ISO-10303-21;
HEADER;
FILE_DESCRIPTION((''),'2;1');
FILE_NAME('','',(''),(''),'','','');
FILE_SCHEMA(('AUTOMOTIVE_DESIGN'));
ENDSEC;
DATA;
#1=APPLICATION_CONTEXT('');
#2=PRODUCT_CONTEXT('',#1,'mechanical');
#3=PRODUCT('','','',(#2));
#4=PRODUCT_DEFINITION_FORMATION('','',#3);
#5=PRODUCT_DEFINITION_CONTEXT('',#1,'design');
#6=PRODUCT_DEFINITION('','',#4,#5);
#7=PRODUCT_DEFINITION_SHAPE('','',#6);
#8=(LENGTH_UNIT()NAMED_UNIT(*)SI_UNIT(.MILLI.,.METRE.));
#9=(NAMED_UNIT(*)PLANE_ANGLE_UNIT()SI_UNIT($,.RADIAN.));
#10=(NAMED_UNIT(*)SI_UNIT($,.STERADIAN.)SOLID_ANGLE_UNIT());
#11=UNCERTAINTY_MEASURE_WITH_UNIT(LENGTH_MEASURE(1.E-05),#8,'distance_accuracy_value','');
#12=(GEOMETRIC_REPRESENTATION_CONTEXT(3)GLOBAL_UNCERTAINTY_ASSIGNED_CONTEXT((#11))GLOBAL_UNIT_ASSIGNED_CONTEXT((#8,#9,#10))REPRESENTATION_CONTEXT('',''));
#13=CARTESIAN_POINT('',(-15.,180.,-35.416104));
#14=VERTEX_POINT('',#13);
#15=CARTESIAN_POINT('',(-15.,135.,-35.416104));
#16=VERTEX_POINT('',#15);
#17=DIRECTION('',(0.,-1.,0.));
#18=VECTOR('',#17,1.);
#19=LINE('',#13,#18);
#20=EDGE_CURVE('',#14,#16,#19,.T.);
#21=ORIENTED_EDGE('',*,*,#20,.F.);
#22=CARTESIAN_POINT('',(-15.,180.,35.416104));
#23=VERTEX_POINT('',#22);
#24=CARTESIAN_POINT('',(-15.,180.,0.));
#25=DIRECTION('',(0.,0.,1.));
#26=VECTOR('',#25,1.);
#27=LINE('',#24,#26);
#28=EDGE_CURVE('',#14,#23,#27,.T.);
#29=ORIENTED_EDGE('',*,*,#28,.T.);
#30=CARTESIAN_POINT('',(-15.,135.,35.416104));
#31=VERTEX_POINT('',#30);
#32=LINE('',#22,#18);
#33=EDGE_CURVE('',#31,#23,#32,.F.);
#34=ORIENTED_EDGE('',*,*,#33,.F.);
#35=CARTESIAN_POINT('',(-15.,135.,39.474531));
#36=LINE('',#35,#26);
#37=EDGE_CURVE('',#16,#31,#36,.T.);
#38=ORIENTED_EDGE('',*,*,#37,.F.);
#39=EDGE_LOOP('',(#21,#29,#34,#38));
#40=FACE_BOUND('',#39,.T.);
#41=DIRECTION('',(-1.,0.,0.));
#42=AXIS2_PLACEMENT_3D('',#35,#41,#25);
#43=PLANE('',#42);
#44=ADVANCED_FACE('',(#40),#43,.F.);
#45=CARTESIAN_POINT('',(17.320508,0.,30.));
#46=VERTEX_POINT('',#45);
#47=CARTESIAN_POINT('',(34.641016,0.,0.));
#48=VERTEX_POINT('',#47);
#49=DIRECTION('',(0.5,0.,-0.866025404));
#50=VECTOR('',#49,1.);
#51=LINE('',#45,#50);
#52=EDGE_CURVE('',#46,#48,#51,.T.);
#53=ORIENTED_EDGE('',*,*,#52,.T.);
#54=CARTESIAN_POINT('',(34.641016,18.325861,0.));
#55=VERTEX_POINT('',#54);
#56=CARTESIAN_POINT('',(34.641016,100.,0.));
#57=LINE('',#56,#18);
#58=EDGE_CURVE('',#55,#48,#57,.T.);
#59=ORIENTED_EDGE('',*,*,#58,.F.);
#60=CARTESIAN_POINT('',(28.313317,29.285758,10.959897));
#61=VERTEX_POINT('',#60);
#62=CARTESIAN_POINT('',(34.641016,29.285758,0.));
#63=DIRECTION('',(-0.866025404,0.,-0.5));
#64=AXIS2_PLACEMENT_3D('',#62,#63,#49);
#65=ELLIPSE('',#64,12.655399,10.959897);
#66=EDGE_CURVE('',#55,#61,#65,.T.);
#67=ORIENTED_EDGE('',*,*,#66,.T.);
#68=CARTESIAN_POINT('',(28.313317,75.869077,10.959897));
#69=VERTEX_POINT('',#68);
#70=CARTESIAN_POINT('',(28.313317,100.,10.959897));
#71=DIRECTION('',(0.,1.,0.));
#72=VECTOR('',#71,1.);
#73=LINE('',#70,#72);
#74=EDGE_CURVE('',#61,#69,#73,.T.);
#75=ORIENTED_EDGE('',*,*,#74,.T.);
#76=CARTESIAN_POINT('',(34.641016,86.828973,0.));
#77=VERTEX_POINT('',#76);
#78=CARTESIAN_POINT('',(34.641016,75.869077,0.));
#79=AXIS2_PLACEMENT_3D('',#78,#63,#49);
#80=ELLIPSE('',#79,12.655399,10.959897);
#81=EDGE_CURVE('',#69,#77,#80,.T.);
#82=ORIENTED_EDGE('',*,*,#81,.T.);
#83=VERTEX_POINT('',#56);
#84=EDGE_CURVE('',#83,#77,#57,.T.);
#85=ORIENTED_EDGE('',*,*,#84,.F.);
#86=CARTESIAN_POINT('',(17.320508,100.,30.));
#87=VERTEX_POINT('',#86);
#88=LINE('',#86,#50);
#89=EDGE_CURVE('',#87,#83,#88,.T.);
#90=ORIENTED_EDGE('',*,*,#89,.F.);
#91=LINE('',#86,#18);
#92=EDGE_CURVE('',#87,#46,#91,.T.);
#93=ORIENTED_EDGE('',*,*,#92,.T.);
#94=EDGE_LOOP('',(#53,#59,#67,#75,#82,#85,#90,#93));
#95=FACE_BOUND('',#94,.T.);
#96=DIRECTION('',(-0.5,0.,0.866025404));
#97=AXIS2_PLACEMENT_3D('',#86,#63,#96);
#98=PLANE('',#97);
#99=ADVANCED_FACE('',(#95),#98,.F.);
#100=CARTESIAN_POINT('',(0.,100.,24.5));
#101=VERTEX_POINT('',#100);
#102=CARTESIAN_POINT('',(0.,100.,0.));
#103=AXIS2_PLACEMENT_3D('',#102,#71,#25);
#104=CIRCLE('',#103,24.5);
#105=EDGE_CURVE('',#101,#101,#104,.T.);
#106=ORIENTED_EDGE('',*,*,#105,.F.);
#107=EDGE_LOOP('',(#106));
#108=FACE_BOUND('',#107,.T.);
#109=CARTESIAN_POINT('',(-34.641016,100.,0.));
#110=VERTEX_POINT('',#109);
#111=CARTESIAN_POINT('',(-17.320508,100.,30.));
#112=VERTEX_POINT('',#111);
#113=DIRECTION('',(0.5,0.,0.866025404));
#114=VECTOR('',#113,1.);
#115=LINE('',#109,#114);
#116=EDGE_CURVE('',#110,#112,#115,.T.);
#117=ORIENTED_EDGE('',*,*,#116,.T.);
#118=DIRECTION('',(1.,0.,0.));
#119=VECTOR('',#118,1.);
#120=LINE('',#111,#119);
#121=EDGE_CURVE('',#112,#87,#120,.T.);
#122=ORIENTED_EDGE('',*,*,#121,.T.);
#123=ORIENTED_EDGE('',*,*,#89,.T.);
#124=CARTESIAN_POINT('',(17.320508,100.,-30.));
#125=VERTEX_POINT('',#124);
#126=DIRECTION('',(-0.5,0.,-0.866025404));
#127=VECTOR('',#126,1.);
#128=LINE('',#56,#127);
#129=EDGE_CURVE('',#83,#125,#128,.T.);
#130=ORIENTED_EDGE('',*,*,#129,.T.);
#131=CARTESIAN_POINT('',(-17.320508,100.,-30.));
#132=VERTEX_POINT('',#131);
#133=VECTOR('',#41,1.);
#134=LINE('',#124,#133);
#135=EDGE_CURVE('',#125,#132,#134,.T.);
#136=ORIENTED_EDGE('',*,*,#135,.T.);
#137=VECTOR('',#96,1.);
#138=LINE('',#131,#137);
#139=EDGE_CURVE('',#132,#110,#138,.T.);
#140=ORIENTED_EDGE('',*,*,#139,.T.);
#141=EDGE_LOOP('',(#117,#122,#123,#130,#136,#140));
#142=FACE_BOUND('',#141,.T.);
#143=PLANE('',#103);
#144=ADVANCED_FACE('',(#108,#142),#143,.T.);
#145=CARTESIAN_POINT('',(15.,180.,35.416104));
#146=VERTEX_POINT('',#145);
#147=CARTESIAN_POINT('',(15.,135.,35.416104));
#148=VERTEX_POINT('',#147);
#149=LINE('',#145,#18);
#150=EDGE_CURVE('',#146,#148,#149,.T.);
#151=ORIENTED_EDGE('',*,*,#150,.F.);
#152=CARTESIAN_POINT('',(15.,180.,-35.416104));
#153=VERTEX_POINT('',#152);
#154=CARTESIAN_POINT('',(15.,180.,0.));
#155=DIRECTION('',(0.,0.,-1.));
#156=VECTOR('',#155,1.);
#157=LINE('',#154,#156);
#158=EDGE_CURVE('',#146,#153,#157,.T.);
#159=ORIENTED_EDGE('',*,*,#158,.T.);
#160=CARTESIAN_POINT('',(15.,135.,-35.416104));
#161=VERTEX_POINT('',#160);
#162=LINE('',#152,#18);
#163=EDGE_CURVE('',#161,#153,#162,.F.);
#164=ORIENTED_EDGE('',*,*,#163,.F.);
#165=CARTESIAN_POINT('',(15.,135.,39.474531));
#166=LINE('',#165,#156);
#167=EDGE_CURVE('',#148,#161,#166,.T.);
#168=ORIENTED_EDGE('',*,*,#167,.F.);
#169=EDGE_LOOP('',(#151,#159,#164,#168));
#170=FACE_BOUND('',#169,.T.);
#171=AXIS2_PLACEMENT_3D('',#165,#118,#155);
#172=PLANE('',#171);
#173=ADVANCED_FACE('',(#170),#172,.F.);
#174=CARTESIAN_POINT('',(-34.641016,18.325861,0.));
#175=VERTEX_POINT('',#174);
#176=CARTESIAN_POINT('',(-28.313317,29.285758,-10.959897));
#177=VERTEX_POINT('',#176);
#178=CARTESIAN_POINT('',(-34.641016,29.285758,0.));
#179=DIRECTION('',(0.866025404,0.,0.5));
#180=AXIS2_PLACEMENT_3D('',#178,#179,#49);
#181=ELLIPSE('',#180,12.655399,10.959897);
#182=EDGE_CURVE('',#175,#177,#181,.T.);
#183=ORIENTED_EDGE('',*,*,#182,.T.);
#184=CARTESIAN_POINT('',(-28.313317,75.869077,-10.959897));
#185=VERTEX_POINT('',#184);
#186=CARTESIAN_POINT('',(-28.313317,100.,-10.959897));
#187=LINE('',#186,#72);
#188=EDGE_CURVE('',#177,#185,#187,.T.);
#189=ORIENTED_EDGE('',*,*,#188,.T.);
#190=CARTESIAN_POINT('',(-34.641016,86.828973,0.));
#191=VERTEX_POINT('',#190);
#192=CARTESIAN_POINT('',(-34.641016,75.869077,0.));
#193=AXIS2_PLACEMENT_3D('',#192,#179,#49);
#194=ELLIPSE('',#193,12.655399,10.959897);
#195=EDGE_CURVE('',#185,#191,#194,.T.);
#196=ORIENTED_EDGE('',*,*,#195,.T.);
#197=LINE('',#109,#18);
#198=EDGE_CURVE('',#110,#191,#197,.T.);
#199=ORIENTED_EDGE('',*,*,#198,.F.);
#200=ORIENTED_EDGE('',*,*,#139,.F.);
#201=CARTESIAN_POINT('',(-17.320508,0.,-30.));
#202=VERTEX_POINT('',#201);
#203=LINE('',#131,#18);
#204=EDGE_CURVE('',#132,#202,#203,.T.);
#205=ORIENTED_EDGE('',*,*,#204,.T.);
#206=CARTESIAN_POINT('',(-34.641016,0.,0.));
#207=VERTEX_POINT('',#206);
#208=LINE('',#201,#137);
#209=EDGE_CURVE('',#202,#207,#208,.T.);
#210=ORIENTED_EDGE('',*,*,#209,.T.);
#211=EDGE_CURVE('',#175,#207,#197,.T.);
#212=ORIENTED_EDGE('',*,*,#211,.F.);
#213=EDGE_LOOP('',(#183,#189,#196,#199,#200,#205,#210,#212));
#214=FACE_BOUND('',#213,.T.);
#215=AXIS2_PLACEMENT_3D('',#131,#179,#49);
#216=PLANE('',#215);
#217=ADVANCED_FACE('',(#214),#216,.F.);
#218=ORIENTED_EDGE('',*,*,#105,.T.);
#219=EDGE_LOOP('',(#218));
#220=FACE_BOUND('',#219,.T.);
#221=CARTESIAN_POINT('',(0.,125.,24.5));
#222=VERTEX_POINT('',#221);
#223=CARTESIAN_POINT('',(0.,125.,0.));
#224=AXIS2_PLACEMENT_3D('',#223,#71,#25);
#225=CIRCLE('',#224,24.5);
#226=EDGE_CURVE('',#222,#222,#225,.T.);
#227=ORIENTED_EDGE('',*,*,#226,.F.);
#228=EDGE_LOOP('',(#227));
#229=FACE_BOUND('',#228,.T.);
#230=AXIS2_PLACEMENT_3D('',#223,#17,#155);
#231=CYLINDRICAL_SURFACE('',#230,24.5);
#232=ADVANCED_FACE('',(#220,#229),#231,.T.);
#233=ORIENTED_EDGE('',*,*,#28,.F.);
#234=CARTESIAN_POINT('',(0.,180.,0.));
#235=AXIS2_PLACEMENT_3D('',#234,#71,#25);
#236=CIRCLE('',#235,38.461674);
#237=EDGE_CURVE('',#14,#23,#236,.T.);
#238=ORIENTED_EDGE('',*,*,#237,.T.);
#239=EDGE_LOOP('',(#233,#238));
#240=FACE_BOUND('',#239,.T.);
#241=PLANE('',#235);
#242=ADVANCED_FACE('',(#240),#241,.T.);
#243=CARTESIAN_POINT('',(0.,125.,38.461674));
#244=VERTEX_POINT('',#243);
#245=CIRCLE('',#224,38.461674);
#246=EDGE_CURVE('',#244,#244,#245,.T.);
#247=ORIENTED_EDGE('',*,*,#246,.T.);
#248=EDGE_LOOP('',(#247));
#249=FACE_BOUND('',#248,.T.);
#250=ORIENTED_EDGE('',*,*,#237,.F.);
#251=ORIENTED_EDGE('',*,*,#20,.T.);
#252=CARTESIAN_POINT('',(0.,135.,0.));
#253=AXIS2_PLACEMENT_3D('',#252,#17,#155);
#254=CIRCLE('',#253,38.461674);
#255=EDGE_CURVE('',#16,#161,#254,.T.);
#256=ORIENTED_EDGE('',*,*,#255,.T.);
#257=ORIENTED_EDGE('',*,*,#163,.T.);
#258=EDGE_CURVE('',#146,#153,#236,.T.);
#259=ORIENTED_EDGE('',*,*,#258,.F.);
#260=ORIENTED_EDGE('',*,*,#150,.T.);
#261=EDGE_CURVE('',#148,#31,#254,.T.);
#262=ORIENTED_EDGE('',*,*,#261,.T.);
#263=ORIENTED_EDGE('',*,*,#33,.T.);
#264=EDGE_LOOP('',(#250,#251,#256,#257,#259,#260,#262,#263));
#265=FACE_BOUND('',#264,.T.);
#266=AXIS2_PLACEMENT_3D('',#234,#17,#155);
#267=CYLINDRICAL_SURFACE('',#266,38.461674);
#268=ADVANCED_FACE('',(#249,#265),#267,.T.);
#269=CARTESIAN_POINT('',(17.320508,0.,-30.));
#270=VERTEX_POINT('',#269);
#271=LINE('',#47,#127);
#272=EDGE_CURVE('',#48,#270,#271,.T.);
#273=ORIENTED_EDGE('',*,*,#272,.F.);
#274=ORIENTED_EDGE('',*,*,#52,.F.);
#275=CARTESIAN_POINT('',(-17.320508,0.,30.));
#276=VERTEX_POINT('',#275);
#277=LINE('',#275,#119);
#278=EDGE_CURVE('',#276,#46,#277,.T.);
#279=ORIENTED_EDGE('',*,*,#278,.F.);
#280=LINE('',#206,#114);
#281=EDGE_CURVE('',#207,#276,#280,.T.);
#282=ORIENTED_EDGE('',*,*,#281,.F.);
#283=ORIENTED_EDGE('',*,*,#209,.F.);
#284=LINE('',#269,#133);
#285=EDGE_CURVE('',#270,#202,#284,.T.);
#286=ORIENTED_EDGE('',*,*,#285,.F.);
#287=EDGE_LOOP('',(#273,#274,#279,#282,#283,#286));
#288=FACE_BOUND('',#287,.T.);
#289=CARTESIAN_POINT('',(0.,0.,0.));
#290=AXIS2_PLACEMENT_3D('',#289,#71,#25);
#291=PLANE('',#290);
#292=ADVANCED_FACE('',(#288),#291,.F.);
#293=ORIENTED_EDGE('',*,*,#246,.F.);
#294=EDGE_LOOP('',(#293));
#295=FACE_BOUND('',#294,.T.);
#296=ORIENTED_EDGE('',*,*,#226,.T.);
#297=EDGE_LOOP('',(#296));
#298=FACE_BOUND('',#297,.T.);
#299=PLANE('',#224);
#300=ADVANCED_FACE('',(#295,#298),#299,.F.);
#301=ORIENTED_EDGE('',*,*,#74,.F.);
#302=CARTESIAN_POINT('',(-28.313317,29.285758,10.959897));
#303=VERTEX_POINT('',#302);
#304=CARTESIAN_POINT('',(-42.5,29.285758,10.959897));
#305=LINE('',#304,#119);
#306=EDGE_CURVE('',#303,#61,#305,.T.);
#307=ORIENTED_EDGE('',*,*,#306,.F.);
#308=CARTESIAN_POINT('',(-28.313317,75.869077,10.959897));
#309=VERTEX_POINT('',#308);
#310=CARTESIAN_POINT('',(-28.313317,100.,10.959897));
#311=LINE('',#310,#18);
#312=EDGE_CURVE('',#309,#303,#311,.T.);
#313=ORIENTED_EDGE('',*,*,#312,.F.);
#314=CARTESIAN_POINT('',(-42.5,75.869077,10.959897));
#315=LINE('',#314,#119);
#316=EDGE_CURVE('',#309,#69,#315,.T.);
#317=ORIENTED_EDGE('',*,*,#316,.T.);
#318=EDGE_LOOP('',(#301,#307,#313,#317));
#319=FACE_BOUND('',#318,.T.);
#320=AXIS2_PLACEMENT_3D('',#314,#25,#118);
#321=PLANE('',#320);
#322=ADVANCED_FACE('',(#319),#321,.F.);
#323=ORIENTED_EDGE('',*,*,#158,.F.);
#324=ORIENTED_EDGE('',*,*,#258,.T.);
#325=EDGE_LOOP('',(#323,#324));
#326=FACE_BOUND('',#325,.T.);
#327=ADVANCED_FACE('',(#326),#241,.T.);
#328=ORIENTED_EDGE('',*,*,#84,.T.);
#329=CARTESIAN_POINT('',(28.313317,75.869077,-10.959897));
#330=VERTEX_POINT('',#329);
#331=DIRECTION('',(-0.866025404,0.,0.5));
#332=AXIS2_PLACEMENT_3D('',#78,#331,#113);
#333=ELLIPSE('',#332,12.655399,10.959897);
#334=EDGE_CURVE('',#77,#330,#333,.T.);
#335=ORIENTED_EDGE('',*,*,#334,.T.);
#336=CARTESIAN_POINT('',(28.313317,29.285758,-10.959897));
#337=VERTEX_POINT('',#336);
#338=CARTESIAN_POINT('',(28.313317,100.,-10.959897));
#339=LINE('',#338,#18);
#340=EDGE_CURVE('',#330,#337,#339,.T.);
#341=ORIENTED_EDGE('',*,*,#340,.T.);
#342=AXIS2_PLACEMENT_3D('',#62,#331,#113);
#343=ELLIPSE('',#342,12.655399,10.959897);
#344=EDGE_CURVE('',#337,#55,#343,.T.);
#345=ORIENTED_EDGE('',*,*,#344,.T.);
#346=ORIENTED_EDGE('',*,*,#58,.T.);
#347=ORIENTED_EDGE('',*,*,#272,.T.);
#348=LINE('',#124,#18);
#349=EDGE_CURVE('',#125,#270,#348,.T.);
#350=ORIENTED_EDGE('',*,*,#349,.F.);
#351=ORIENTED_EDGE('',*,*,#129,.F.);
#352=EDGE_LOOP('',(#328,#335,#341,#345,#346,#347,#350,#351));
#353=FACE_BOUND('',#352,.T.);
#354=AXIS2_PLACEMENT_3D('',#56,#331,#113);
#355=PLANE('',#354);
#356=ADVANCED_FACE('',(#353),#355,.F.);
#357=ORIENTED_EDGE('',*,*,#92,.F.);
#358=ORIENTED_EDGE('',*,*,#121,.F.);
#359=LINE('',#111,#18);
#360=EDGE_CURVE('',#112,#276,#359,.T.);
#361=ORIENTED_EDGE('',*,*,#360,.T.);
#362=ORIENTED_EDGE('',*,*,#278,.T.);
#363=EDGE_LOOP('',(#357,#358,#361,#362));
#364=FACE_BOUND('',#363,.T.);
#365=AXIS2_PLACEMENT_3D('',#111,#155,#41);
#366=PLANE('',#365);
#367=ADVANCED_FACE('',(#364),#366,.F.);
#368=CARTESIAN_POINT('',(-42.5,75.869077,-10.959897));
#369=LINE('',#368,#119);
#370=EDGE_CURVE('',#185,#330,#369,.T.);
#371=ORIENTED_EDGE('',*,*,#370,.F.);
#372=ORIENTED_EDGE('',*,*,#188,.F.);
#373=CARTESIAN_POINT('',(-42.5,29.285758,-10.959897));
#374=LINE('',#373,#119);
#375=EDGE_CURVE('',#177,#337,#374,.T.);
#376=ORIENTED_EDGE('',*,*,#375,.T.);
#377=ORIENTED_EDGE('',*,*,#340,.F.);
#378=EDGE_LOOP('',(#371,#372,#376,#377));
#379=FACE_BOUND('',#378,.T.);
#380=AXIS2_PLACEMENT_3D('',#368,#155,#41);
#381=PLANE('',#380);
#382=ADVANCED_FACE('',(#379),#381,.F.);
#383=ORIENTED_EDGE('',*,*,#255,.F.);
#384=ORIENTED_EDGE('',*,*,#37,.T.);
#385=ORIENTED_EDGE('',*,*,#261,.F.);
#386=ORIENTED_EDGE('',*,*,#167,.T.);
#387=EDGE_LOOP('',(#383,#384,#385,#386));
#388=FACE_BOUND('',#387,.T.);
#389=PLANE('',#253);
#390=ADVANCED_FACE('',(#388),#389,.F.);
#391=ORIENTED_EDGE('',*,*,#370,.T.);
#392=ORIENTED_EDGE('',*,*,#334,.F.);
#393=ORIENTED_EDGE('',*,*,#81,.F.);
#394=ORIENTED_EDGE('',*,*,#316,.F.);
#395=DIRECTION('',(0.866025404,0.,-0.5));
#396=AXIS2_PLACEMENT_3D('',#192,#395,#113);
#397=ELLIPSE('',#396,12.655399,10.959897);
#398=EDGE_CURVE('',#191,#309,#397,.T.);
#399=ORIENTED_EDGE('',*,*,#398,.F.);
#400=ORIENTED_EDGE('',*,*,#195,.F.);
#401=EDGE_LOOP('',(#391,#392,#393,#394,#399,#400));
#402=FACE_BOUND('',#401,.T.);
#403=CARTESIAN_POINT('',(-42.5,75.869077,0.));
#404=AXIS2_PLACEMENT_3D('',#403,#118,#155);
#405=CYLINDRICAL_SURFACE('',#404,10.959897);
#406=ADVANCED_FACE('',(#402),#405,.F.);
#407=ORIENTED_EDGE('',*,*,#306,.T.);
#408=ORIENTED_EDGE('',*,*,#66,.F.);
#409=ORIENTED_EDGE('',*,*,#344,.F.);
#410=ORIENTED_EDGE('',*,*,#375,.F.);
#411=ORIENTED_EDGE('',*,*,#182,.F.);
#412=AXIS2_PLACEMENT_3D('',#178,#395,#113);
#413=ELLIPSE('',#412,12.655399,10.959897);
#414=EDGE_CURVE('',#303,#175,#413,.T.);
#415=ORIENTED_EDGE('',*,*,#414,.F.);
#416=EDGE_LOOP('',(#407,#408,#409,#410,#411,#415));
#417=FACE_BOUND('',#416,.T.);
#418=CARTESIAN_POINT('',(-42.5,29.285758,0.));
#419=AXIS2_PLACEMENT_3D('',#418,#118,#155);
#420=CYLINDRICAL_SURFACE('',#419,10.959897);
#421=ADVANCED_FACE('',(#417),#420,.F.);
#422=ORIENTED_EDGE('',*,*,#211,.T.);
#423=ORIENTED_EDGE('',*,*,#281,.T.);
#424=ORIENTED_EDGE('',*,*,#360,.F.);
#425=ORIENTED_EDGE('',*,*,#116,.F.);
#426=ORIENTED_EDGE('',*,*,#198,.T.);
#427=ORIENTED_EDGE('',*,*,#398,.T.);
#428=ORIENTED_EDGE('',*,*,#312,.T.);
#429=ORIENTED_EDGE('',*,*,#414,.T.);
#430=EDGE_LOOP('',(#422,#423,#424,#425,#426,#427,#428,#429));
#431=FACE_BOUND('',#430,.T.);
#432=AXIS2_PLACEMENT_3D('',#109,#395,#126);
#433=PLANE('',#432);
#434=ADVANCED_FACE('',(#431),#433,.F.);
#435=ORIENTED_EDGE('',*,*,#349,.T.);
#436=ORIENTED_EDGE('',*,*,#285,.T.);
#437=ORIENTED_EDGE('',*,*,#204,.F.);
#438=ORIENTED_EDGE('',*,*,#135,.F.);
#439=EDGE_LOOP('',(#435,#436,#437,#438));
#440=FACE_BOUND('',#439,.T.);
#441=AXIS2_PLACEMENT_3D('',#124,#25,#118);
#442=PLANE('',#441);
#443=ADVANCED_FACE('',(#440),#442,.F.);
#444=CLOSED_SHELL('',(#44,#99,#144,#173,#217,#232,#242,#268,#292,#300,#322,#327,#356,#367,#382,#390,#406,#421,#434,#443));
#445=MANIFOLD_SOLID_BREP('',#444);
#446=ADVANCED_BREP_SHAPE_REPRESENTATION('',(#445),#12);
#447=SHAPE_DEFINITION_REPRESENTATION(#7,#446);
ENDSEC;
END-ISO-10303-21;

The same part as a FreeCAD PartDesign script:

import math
import FreeCAD as App
import Part
import Sketcher

V = App.Vector
Q = App.Units.Quantity

doc = App.newDocument("Part")
body = doc.addObject("PartDesign::Body", "Body")

# Sketch on XZ plane
sketch1 = body.newObject("Sketcher::SketchObject", "Sketch")
sketch1.AttachmentSupport = (doc.getObject("XZ_Plane"), [""])
sketch1.MapMode = "FlatFace"
sketch1.addGeometry(Part.LineSegment(V(35, 0, 0), V(17, -30, 0)), False)
sketch1.addGeometry(Part.LineSegment(V(17, -30, 0), V(-17, -30, 0)), False)
sketch1.addGeometry(Part.LineSegment(V(-17, -30, 0), V(-35, 0, 0)), False)
sketch1.addGeometry(Part.LineSegment(V(-35, 0, 0), V(-17, 30, 0)), False)
sketch1.addGeometry(Part.LineSegment(V(-17, 30, 0), V(17, 30, 0)), False)
sketch1.addGeometry(Part.LineSegment(V(17, 30, 0), V(35, 0, 0)), False)
sketch1.addConstraint(Sketcher.Constraint("Coincident", 0, 2, 1, 1))
sketch1.addConstraint(Sketcher.Constraint("Coincident", 1, 2, 2, 1))
sketch1.addConstraint(Sketcher.Constraint("Coincident", 2, 2, 3, 1))
sketch1.addConstraint(Sketcher.Constraint("Coincident", 3, 2, 4, 1))
sketch1.addConstraint(Sketcher.Constraint("Coincident", 4, 2, 5, 1))
sketch1.addConstraint(Sketcher.Constraint("Coincident", 5, 2, 0, 1))
sketch1.addConstraint(Sketcher.Constraint("Horizontal", 1))
sketch1.addConstraint(Sketcher.Constraint("Horizontal", 4))
sketch1.addConstraint(Sketcher.Constraint("Symmetric", 0, 2, 3, 2, -1, 1))
sketch1.addConstraint(Sketcher.Constraint("Symmetric", 2, 2, 5, 2, -1, 1))
sketch1.addConstraint(Sketcher.Constraint("PointOnObject", 2, 2, -1))
sketch1.addConstraint(Sketcher.Constraint("Parallel", 2, 5))
sketch1.addConstraint(Sketcher.Constraint("Vertical", 1, 2, 3, 2))
sketch1.addConstraint(Sketcher.Constraint("Angle", 0, Q("-120 deg")))
sketch1.addConstraint(Sketcher.Constraint("DistanceY", 0, 2, -1, 1, 30.0))
sketch1.addConstraint(Sketcher.Constraint("DistanceX", 1, 2, 1, 1, 34.641016))
pad1 = body.newObject("PartDesign::Pad", "Pad")
pad1.Profile = sketch1
pad1.Length = 100
pad1.Reversed = True

# Sketch on XZ plane
sketch2 = body.newObject("Sketcher::SketchObject", "Sketch001")
sketch2.AttachmentSupport = (doc.getObject("XZ_Plane"), [""])
sketch2.MapMode = "FlatFace"
sketch2.AttachmentOffset = App.Placement(V(0, 0, -100), App.Rotation())
sketch2.addGeometry(Part.Circle(V(0, 0, 0), V(0, 0, 1), 24), False)
sketch2.addConstraint(Sketcher.Constraint("Coincident", 0, 3, -1, 1))
sketch2.addConstraint(Sketcher.Constraint("Diameter", 0, 49.0))
pad2 = body.newObject("PartDesign::Pad", "Pad001")
pad2.Profile = sketch2
pad2.Length = 25
pad2.Reversed = True

# Sketch on XZ plane
sketch3 = body.newObject("Sketcher::SketchObject", "Sketch002")
sketch3.AttachmentSupport = (doc.getObject("XZ_Plane"), [""])
sketch3.MapMode = "FlatFace"
sketch3.AttachmentOffset = App.Placement(V(0, 0, -125), App.Rotation())
sketch3.addGeometry(Part.Circle(V(0, 0, 0), V(0, 0, 1), 38), False)
sketch3.addConstraint(Sketcher.Constraint("Coincident", 0, 3, -1, 1))
sketch3.addConstraint(Sketcher.Constraint("Diameter", 0, 76.923349))
pad3 = body.newObject("PartDesign::Pad", "Pad002")
pad3.Profile = sketch3
pad3.Length = 55
pad3.Reversed = True

# Sketch on XZ plane
sketch4 = body.newObject("Sketcher::SketchObject", "Sketch003")
sketch4.AttachmentSupport = (doc.getObject("XZ_Plane"), [""])
sketch4.MapMode = "FlatFace"
sketch4.AttachmentOffset = App.Placement(V(0, 0, -180), App.Rotation())
sketch4.addGeometry(Part.LineSegment(V(-15, -39, 0), V(-15, 39, 0)), False)
sketch4.addGeometry(Part.LineSegment(V(-15, 39, 0), V(15, 39, 0)), False)
sketch4.addGeometry(Part.LineSegment(V(15, 39, 0), V(15, -39, 0)), False)
sketch4.addGeometry(Part.LineSegment(V(15, -39, 0), V(-15, -39, 0)), False)
sketch4.addConstraint(Sketcher.Constraint("Coincident", 0, 2, 1, 1))
sketch4.addConstraint(Sketcher.Constraint("Coincident", 1, 2, 2, 1))
sketch4.addConstraint(Sketcher.Constraint("Coincident", 2, 2, 3, 1))
sketch4.addConstraint(Sketcher.Constraint("Coincident", 3, 2, 0, 1))
sketch4.addConstraint(Sketcher.Constraint("Vertical", 0))
sketch4.addConstraint(Sketcher.Constraint("Horizontal", 1))
sketch4.addConstraint(Sketcher.Constraint("Vertical", 2))
sketch4.addConstraint(Sketcher.Constraint("Horizontal", 3))
sketch4.addConstraint(Sketcher.Constraint("Symmetric", 0, 2, 2, 2, -1, 1))
sketch4.addConstraint(Sketcher.Constraint("DistanceX", 1, 1, 1, 2, 30.0))
sketch4.addConstraint(Sketcher.Constraint("DistanceY", 0, 1, 0, 2, 78.949062))
pocket1 = body.newObject("PartDesign::Pocket", "Pocket")
pocket1.Profile = sketch4
pocket1.Length = 45
pocket1.Reversed = True

# Sketch on YZ plane
sketch5 = body.newObject("Sketcher::SketchObject", "Sketch004")
sketch5.AttachmentSupport = (doc.getObject("YZ_Plane"), [""])
sketch5.MapMode = "FlatFace"
sketch5.addGeometry(Part.LineSegment(V(29, -11, 0), V(76, -11, 0)), False)
sketch5.addGeometry(Part.ArcOfCircle(Part.Circle(V(76, 0, 0), V(0, 0, 1), 11), math.radians(-90), math.radians(90)), False)
sketch5.addGeometry(Part.LineSegment(V(76, 11, 0), V(29, 11, 0)), False)
sketch5.addGeometry(Part.ArcOfCircle(Part.Circle(V(29, 0, 0), V(0, 0, 1), 11), math.radians(90), math.radians(270)), False)
sketch5.addConstraint(Sketcher.Constraint("Tangent", 0, 2, 1, 1))
sketch5.addConstraint(Sketcher.Constraint("Tangent", 1, 2, 2, 1))
sketch5.addConstraint(Sketcher.Constraint("Tangent", 2, 2, 3, 1))
sketch5.addConstraint(Sketcher.Constraint("Tangent", 3, 2, 0, 1))
sketch5.addConstraint(Sketcher.Constraint("Horizontal", 0))
sketch5.addConstraint(Sketcher.Constraint("Horizontal", 2))
sketch5.addConstraint(Sketcher.Constraint("PointOnObject", 1, 3, -1))
sketch5.addConstraint(Sketcher.Constraint("Radius", 1, 10.959897))
sketch5.addConstraint(Sketcher.Constraint("DistanceX", 0, 1, 0, 2, 46.583319))
sketch5.addConstraint(Sketcher.Constraint("DistanceX", -1, 1, 1, 3, 75.869077))
pocket2 = body.newObject("PartDesign::Pocket", "Pocket001")
pocket2.Profile = sketch5
pocket2.Length = 85
pocket2.Midplane = True

doc.recompute()
